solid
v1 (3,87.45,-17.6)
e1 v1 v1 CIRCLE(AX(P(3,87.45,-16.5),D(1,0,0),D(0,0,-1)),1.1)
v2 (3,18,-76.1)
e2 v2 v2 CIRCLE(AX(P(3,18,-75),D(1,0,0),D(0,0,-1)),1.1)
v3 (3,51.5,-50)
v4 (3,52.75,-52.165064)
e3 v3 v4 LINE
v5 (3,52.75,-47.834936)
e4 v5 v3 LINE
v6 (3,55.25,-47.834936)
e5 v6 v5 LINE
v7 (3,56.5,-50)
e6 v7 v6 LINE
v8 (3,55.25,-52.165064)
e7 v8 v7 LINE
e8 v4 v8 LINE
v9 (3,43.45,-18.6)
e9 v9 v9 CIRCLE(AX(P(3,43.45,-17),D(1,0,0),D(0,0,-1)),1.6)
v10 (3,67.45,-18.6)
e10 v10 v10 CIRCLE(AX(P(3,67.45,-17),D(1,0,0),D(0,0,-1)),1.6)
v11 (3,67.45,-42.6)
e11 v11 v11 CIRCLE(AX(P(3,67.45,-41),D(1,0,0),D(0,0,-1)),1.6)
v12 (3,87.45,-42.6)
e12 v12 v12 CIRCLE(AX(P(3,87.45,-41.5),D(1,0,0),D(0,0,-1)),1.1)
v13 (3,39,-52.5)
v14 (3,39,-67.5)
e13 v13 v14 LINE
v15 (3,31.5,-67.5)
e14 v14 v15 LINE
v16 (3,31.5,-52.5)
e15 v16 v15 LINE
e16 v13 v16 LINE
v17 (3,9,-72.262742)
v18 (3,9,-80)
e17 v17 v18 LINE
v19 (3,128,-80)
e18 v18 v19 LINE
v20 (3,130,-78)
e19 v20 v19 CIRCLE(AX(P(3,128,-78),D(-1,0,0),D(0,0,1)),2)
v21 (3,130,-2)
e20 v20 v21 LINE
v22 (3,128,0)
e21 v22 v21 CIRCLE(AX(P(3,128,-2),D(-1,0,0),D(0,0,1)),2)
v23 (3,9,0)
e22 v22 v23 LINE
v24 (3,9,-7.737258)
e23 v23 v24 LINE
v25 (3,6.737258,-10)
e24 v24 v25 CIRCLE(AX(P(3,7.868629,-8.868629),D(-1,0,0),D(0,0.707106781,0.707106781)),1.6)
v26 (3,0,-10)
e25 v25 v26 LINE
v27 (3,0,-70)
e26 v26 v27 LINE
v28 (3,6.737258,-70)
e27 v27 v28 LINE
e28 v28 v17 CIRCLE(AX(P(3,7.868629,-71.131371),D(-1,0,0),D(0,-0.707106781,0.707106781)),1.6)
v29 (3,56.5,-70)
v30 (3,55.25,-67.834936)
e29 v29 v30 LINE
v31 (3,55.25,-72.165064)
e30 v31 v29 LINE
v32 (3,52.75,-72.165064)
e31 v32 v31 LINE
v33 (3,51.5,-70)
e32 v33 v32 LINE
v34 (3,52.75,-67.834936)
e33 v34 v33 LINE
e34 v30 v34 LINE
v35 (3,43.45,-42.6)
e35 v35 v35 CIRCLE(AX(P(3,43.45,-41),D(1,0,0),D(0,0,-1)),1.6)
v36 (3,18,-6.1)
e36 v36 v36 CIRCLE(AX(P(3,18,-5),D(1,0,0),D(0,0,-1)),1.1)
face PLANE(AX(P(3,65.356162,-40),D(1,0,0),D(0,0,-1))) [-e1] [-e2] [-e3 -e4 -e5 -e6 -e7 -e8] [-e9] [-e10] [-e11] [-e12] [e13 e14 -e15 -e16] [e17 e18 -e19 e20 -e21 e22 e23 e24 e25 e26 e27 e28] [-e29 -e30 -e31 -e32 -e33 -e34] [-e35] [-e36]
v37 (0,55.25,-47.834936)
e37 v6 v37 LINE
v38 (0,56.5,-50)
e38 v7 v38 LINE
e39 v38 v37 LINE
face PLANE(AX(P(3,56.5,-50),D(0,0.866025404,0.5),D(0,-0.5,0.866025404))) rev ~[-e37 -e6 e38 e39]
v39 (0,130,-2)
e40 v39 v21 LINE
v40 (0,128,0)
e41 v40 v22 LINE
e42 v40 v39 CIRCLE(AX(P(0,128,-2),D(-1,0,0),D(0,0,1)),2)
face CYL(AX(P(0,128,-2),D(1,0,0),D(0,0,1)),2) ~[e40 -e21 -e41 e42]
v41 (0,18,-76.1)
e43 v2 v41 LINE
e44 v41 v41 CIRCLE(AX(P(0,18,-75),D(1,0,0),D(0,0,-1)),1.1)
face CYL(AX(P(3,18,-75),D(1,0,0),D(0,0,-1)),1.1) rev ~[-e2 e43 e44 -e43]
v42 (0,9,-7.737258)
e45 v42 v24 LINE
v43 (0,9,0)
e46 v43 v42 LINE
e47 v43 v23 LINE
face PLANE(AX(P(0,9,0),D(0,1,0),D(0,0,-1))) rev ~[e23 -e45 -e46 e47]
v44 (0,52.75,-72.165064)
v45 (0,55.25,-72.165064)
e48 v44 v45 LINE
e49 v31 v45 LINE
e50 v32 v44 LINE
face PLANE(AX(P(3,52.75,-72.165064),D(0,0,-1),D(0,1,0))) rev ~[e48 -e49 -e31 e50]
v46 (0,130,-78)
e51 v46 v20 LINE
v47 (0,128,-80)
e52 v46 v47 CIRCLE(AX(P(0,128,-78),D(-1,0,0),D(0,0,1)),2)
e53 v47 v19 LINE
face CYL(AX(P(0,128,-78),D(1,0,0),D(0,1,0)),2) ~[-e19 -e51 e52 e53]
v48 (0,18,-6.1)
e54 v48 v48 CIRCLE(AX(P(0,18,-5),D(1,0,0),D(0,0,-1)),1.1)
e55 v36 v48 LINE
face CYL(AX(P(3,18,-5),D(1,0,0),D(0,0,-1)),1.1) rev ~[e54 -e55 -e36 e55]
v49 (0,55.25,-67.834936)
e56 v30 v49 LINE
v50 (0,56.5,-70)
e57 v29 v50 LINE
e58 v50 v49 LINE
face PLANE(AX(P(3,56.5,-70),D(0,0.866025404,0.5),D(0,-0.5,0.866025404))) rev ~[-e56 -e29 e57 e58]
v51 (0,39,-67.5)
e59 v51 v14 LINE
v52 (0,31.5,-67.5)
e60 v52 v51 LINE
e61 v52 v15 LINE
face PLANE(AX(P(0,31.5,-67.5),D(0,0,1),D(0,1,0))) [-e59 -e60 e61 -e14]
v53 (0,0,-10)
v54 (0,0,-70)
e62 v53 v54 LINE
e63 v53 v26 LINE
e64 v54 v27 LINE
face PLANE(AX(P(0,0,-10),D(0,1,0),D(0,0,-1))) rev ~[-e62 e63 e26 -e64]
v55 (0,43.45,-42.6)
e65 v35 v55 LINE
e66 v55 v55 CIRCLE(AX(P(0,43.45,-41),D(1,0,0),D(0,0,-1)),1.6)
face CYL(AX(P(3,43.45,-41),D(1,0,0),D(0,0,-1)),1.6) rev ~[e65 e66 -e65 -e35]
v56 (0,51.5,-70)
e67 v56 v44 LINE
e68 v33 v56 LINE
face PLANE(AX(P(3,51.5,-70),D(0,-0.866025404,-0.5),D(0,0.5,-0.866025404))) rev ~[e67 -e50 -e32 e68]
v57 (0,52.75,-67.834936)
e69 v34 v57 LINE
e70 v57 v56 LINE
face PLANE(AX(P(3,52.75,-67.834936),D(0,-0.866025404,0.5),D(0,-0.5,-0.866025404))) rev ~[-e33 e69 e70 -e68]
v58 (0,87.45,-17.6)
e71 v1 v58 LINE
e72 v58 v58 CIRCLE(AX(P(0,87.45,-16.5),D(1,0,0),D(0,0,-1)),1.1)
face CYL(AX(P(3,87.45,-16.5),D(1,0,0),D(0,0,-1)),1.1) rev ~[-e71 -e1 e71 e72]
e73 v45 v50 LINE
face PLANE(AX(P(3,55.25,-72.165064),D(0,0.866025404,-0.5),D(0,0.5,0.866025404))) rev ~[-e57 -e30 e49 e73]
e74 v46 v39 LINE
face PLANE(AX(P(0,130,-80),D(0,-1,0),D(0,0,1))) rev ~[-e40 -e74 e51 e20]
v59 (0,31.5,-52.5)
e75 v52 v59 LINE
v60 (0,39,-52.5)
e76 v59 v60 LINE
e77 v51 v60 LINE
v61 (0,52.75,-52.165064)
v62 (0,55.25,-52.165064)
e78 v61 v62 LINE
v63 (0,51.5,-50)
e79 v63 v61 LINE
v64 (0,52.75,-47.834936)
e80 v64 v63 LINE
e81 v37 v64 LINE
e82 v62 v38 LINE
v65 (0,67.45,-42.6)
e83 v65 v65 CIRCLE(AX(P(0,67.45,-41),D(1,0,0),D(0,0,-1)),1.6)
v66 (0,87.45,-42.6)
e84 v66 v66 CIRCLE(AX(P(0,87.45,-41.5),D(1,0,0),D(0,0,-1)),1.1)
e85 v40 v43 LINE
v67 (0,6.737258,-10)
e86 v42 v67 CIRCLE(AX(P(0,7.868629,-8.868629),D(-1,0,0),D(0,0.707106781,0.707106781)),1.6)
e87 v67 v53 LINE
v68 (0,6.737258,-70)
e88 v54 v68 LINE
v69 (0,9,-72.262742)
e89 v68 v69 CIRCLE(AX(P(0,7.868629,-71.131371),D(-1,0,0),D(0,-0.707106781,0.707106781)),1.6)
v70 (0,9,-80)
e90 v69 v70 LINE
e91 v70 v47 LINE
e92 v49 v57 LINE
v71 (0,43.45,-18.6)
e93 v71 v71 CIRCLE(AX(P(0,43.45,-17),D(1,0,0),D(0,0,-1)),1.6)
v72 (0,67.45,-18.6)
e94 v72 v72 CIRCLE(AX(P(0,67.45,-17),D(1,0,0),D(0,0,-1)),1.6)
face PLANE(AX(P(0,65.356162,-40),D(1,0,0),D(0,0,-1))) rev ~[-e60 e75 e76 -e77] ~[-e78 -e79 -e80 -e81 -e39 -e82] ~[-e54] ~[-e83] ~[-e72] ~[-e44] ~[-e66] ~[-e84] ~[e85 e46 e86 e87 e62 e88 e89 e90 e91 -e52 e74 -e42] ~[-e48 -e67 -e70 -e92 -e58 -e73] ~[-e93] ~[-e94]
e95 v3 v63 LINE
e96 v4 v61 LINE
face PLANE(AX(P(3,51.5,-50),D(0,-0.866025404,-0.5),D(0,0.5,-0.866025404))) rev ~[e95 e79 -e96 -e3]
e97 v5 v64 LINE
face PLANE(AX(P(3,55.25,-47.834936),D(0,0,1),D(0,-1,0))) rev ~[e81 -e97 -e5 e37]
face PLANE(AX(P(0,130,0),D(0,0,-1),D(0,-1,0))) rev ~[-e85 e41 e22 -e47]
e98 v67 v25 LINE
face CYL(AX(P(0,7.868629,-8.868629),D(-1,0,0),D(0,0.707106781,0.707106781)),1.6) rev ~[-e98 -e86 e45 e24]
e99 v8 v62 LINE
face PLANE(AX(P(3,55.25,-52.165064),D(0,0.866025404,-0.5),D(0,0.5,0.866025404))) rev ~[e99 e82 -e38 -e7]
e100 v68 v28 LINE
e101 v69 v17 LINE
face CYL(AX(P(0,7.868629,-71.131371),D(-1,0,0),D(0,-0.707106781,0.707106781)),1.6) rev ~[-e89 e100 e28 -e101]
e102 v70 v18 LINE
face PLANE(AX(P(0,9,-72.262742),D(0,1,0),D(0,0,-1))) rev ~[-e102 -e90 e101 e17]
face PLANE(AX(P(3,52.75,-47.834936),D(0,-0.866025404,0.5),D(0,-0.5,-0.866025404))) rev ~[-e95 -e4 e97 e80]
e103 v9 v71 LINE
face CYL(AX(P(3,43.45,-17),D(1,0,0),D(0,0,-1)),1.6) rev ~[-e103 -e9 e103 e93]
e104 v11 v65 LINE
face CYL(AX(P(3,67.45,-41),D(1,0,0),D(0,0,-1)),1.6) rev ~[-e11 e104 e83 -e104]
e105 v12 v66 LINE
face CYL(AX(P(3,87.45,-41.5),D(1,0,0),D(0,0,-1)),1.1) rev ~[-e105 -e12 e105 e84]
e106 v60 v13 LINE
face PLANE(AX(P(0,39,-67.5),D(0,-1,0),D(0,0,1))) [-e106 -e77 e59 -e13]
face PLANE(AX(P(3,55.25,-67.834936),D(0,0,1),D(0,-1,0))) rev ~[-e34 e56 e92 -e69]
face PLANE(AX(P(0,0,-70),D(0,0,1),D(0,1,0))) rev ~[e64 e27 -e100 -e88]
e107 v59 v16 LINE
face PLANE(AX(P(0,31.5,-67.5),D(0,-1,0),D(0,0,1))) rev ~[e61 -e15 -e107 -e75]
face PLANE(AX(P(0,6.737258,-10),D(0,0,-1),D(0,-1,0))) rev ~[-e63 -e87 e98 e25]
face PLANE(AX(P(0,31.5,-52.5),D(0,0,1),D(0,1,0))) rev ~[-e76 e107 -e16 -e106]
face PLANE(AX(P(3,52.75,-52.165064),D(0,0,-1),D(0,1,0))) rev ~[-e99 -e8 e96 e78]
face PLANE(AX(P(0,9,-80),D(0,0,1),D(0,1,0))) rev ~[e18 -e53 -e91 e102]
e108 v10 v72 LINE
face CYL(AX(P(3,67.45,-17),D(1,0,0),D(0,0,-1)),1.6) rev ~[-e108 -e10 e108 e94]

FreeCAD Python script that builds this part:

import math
import FreeCAD as App
import Part
import Sketcher
Q = App.Units.Quantity


def edges_at(feature, points):
    """Names of the edges that pass closest to the given points."""
    edges = feature.Shape.Edges
    near = lambda p: min(range(len(edges)), key=lambda i: edges[i].distToShape(Part.Vertex(*p))[0])
    return sorted({f"Edge{near(p) + 1}" for p in points})

doc = App.newDocument("Part")
body = doc.addObject("PartDesign::Body", "Body")

sketch1 = body.newObject("Sketcher::SketchObject", "Sketch")
sketch1.AttachmentSupport = (doc.getObject("YZ_Plane"), [""])
sketch1.MapMode = "FlatFace"
sketch1.addGeometry(Part.LineSegment(App.Vector(6.737258, -10, 0), App.Vector(0, -10, 0)), False)
sketch1.addGeometry(Part.LineSegment(App.Vector(0, -10, 0), App.Vector(0, -70, 0)), False)
sketch1.addGeometry(Part.LineSegment(App.Vector(0, -70, 0), App.Vector(6.737258, -70, 0)), False)
sketch1.addGeometry(Part.ArcOfCircle(Part.Circle(App.Vector(7.868629, -71.131371, 0), App.Vector(0, 0, 1), 1.6), math.radians(-45), math.radians(135)), False)
sketch1.addGeometry(Part.LineSegment(App.Vector(9, -72.262742, 0), App.Vector(9, -80, 0)), False)
sketch1.addGeometry(Part.LineSegment(App.Vector(9, -80, 0), App.Vector(130, -80, 0)), False)
sketch1.addGeometry(Part.LineSegment(App.Vector(130, -80, 0), App.Vector(130, 0, 0)), False)
sketch1.addGeometry(Part.LineSegment(App.Vector(130, 0, 0), App.Vector(9, 0, 0)), False)
sketch1.addGeometry(Part.LineSegment(App.Vector(9, 0, 0), App.Vector(9, -7.737258, 0)), False)
sketch1.addGeometry(Part.ArcOfCircle(Part.Circle(App.Vector(7.868629, -8.868629, 0), App.Vector(0, 0, 1), 1.6), math.radians(-135), math.radians(45)), False)
sketch1.addConstraint(Sketcher.Constraint("Coincident", 0, 2, 1, 1))
sketch1.addConstraint(Sketcher.Constraint("Coincident", 1, 2, 2, 1))
sketch1.addConstraint(Sketcher.Constraint("Coincident", 2, 2, 3, 2))
sketch1.addConstraint(Sketcher.Constraint("Coincident", 3, 1, 4, 1))
sketch1.addConstraint(Sketcher.Constraint("Coincident", 4, 2, 5, 1))
sketch1.addConstraint(Sketcher.Constraint("Coincident", 5, 2, 6, 1))
sketch1.addConstraint(Sketcher.Constraint("Coincident", 6, 2, 7, 1))
sketch1.addConstraint(Sketcher.Constraint("Coincident", 7, 2, 8, 1))
sketch1.addConstraint(Sketcher.Constraint("Coincident", 8, 2, 9, 2))
sketch1.addConstraint(Sketcher.Constraint("Coincident", 9, 1, 0, 1))
sketch1.addConstraint(Sketcher.Constraint("Horizontal", 0))
sketch1.addConstraint(Sketcher.Constraint("Vertical", 1))
sketch1.addConstraint(Sketcher.Constraint("Horizontal", 2))
sketch1.addConstraint(Sketcher.Constraint("Vertical", 4))
sketch1.addConstraint(Sketcher.Constraint("Horizontal", 5))
sketch1.addConstraint(Sketcher.Constraint("Vertical", 6))
sketch1.addConstraint(Sketcher.Constraint("Horizontal", 7))
sketch1.addConstraint(Sketcher.Constraint("Vertical", 8))
sketch1.addConstraint(Sketcher.Constraint("Equal", 3, 9))
sketch1.addConstraint(Sketcher.Constraint("PointOnObject", 0, 2, -2))
sketch1.addConstraint(Sketcher.Constraint("PointOnObject", 6, 2, -1))
sketch1.addConstraint(Sketcher.Constraint("Vertical", 3, 3, 9, 3))
sketch1.addConstraint(Sketcher.Constraint("Vertical", 4, 2, 7, 2))
sketch1.addConstraint(Sketcher.Constraint("Vertical", 2, 2, 9, 1))
sketch1.addConstraint(Sketcher.Constraint("Equal", 4, 8))
sketch1.addConstraint(Sketcher.Constraint("Radius", 3, Q("1.6 mm")))
sketch1.addConstraint(Sketcher.Constraint("DistanceX", 5, 1, 5, 2, Q("121 mm")))
sketch1.addConstraint(Sketcher.Constraint("DistanceY", 1, 2, 1, 1, Q("60 mm")))
sketch1.addConstraint(Sketcher.Constraint("DistanceY", 6, 1, 6, 2, Q("80 mm")))
sketch1.addConstraint(Sketcher.Constraint("DistanceX", -1, 1, 3, 1, Q("9 mm")))
sketch1.addConstraint(Sketcher.Constraint("DistanceX", 0, 2, 0, 1, Q("6.737258 mm")))
sketch1.addConstraint(Sketcher.Constraint("DistanceX", -1, 1, 3, 3, Q("7.868629 mm")))
pad1 = body.newObject("PartDesign::Pad", "Pad")
pad1.Profile = sketch1
pad1.Length = 3

sketch2 = body.newObject("Sketcher::SketchObject", "Sketch001")
sketch2.AttachmentSupport = (doc.getObject("YZ_Plane"), [""])
sketch2.MapMode = "FlatFace"
sketch2.AttachmentOffset = App.Placement(App.Vector(0, 0, 3), App.Rotation())
sketch2.addGeometry(Part.Circle(App.Vector(67.45, -17, 0), App.Vector(0, 0, 1), 1.6), False)
sketch2.addGeometry(Part.Circle(App.Vector(43.45, -17, 0), App.Vector(0, 0, 1), 1.6), False)
sketch2.addGeometry(Part.Circle(App.Vector(43.45, -41, 0), App.Vector(0, 0, 1), 1.6), False)
sketch2.addGeometry(Part.Circle(App.Vector(67.45, -41, 0), App.Vector(0, 0, 1), 1.6), False)
sketch2.addGeometry(Part.Circle(App.Vector(54, -70, 0), App.Vector(0, 0, 1), 1.1), False)
sketch2.addGeometry(Part.Circle(App.Vector(54, -50, 0), App.Vector(0, 0, 1), 1.1), False)
sketch2.addConstraint(Sketcher.Constraint("Equal", 0, 1))
sketch2.addConstraint(Sketcher.Constraint("Equal", 1, 2))
sketch2.addConstraint(Sketcher.Constraint("Equal", 2, 3))
sketch2.addConstraint(Sketcher.Constraint("Equal", 4, 5))
sketch2.addConstraint(Sketcher.Constraint("Horizontal", 0, 3, 1, 3))
sketch2.addConstraint(Sketcher.Constraint("Horizontal", 2, 3, 3, 3))
sketch2.addConstraint(Sketcher.Constraint("Vertical", 1, 3, 2, 3))
sketch2.addConstraint(Sketcher.Constraint("Vertical", 0, 3, 3, 3))
sketch2.addConstraint(Sketcher.Constraint("Vertical", 4, 3, 5, 3))
sketch2.addConstraint(Sketcher.Constraint("Diameter", 0, Q("3.2 mm")))
sketch2.addConstraint(Sketcher.Constraint("Diameter", 4, Q("2.2 mm")))
sketch2.addConstraint(Sketcher.Constraint("DistanceY", 0, 3, -1, 1, Q("17 mm")))
sketch2.addConstraint(Sketcher.Constraint("DistanceY", 2, 3, -1, 1, Q("41 mm")))
sketch2.addConstraint(Sketcher.Constraint("DistanceX", -1, 1, 4, 3, Q("54 mm")))
sketch2.addConstraint(Sketcher.Constraint("DistanceY", 4, 3, -1, 1, Q("70 mm")))
sketch2.addConstraint(Sketcher.Constraint("DistanceY", 5, 3, -1, 1, Q("50 mm")))
sketch2.addConstraint(Sketcher.Constraint("DistanceX", 1, 3, 0, 3, Q("24 mm")))
sketch2.addConstraint(Sketcher.Constraint("DistanceX", -1, 1, 0, 3, Q("67.45 mm")))
pocket1 = body.newObject("PartDesign::Pocket", "Pocket")
pocket1.Profile = sketch2
pocket1.Type = "ThroughAll"

sketch3 = body.newObject("Sketcher::SketchObject", "Sketch002")
sketch3.AttachmentSupport = (doc.getObject("YZ_Plane"), [""])
sketch3.MapMode = "FlatFace"
sketch3.addGeometry(Part.LineSegment(App.Vector(39, -67.5, 0), App.Vector(31.5, -67.5, 0)), False)
sketch3.addGeometry(Part.LineSegment(App.Vector(31.5, -67.5, 0), App.Vector(31.5, -52.5, 0)), False)
sketch3.addGeometry(Part.LineSegment(App.Vector(31.5, -52.5, 0), App.Vector(39, -52.5, 0)), False)
sketch3.addGeometry(Part.LineSegment(App.Vector(39, -52.5, 0), App.Vector(39, -67.5, 0)), False)
sketch3.addConstraint(Sketcher.Constraint("Coincident", 0, 2, 1, 1))
sketch3.addConstraint(Sketcher.Constraint("Coincident", 1, 2, 2, 1))
sketch3.addConstraint(Sketcher.Constraint("Coincident", 2, 2, 3, 1))
sketch3.addConstraint(Sketcher.Constraint("Coincident", 3, 2, 0, 1))
sketch3.addConstraint(Sketcher.Constraint("Horizontal", 0))
sketch3.addConstraint(Sketcher.Constraint("Vertical", 1))
sketch3.addConstraint(Sketcher.Constraint("Horizontal", 2))
sketch3.addConstraint(Sketcher.Constraint("Vertical", 3))
sketch3.addConstraint(Sketcher.Constraint("DistanceY", 1, 1, 1, 2, Q("15 mm")))
sketch3.addConstraint(Sketcher.Constraint("DistanceX", 0, 2, 0, 1, Q("7.5 mm")))
sketch3.addConstraint(Sketcher.Constraint("DistanceX", -1, 1, 2, 2, Q("39 mm")))
sketch3.addConstraint(Sketcher.Constraint("DistanceY", 0, 2, -1, 1, Q("67.5 mm")))
pocket2 = body.newObject("PartDesign::Pocket", "Pocket001")
pocket2.Profile = sketch3
pocket2.Type = "ThroughAll"
pocket2.Reversed = True

sketch4 = body.newObject("Sketcher::SketchObject", "Sketch003")
sketch4.AttachmentSupport = (doc.getObject("YZ_Plane"), [""])
sketch4.MapMode = "FlatFace"
sketch4.AttachmentOffset = App.Placement(App.Vector(0, 0, 3), App.Rotation())
sketch4.addGeometry(Part.Circle(App.Vector(18, -75, 0), App.Vector(0, 0, 1), 1.1), False)
sketch4.addGeometry(Part.Circle(App.Vector(18, -5, 0), App.Vector(0, 0, 1), 1.1), False)
sketch4.addConstraint(Sketcher.Constraint("Equal", 0, 1))
sketch4.addConstraint(Sketcher.Constraint("Vertical", 0, 3, 1, 3))
sketch4.addConstraint(Sketcher.Constraint("Diameter", 0, Q("2.2 mm")))
sketch4.addConstraint(Sketcher.Constraint("DistanceX", -1, 1, 0, 3, Q("18 mm")))
sketch4.addConstraint(Sketcher.Constraint("DistanceY", 0, 3, -1, 1, Q("75 mm")))
sketch4.addConstraint(Sketcher.Constraint("DistanceY", 1, 3, -1, 1, Q("5 mm")))
pocket3 = body.newObject("PartDesign::Pocket", "Pocket002")
pocket3.Profile = sketch4
pocket3.Type = "ThroughAll"

sketch5 = body.newObject("Sketcher::SketchObject", "Sketch004")
sketch5.AttachmentSupport = (doc.getObject("YZ_Plane"), [""])
sketch5.MapMode = "FlatFace"
sketch5.AttachmentOffset = App.Placement(App.Vector(0, 0, 3), App.Rotation())
sketch5.addGeometry(Part.LineSegment(App.Vector(51.5, -50, 0), App.Vector(52.75, -52.165064, 0)), False)
sketch5.addGeometry(Part.LineSegment(App.Vector(52.75, -52.165064, 0), App.Vector(55.25, -52.165064, 0)), False)
sketch5.addGeometry(Part.LineSegment(App.Vector(55.25, -52.165064, 0), App.Vector(56.5, -50, 0)), False)
sketch5.addGeometry(Part.LineSegment(App.Vector(56.5, -50, 0), App.Vector(55.25, -47.834936, 0)), False)
sketch5.addGeometry(Part.LineSegment(App.Vector(55.25, -47.834936, 0), App.Vector(52.75, -47.834936, 0)), False)
sketch5.addGeometry(Part.LineSegment(App.Vector(52.75, -47.834936, 0), App.Vector(51.5, -50, 0)), False)
sketch5.addGeometry(Part.LineSegment(App.Vector(51.5, -70, 0), App.Vector(52.75, -72.165064, 0)), False)
sketch5.addGeometry(Part.LineSegment(App.Vector(52.75, -72.165064, 0), App.Vector(55.25, -72.165064, 0)), False)
sketch5.addGeometry(Part.LineSegment(App.Vector(55.25, -72.165064, 0), App.Vector(56.5, -70, 0)), False)
sketch5.addGeometry(Part.LineSegment(App.Vector(56.5, -70, 0), App.Vector(55.25, -67.834936, 0)), False)
sketch5.addGeometry(Part.LineSegment(App.Vector(55.25, -67.834936, 0), App.Vector(52.75, -67.834936, 0)), False)
sketch5.addGeometry(Part.LineSegment(App.Vector(52.75, -67.834936, 0), App.Vector(51.5, -70, 0)), False)
sketch5.addConstraint(Sketcher.Constraint("Coincident", 0, 2, 1, 1))
sketch5.addConstraint(Sketcher.Constraint("Coincident", 1, 2, 2, 1))
sketch5.addConstraint(Sketcher.Constraint("Coincident", 2, 2, 3, 1))
sketch5.addConstraint(Sketcher.Constraint("Coincident", 3, 2, 4, 1))
sketch5.addConstraint(Sketcher.Constraint("Coincident", 4, 2, 5, 1))
sketch5.addConstraint(Sketcher.Constraint("Coincident", 5, 2, 0, 1))
sketch5.addConstraint(Sketcher.Constraint("Coincident", 6, 2, 7, 1))
sketch5.addConstraint(Sketcher.Constraint("Coincident", 7, 2, 8, 1))
sketch5.addConstraint(Sketcher.Constraint("Coincident", 8, 2, 9, 1))
sketch5.addConstraint(Sketcher.Constraint("Coincident", 9, 2, 10, 1))
sketch5.addConstraint(Sketcher.Constraint("Coincident", 10, 2, 11, 1))
sketch5.addConstraint(Sketcher.Constraint("Coincident", 11, 2, 6, 1))
sketch5.addConstraint(Sketcher.Constraint("Horizontal", 1))
sketch5.addConstraint(Sketcher.Constraint("Horizontal", 4))
sketch5.addConstraint(Sketcher.Constraint("Horizontal", 7))
sketch5.addConstraint(Sketcher.Constraint("Horizontal", 10))
sketch5.addConstraint(Sketcher.Constraint("Parallel", 0, 3))
sketch5.addConstraint(Sketcher.Constraint("Parallel", 2, 5))
sketch5.addConstraint(Sketcher.Constraint("Parallel", 3, 6))
sketch5.addConstraint(Sketcher.Constraint("Parallel", 5, 8))
sketch5.addConstraint(Sketcher.Constraint("Parallel", 6, 9))
sketch5.addConstraint(Sketcher.Constraint("Parallel", 8, 11))
sketch5.addConstraint(Sketcher.Constraint("Horizontal", 2, 2, 5, 2))
sketch5.addConstraint(Sketcher.Constraint("Horizontal", 8, 2, 11, 2))
sketch5.addConstraint(Sketcher.Constraint("Vertical", 1, 2, 3, 2))
sketch5.addConstraint(Sketcher.Constraint("Vertical", 0, 2, 4, 2))
sketch5.addConstraint(Sketcher.Constraint("Vertical", 4, 2, 6, 2))
sketch5.addConstraint(Sketcher.Constraint("Vertical", 3, 2, 7, 2))
sketch5.addConstraint(Sketcher.Constraint("Vertical", 2, 2, 8, 2))
sketch5.addConstraint(Sketcher.Constraint("Vertical", 7, 2, 9, 2))
sketch5.addConstraint(Sketcher.Constraint("Angle", 0, Q("-60 deg")))
sketch5.addConstraint(Sketcher.Constraint("DistanceX", 1, 1, 1, 2, Q("2.5 mm")))
sketch5.addConstraint(Sketcher.Constraint("DistanceY", 2, 2, -1, 1, Q("50 mm")))
sketch5.addConstraint(Sketcher.Constraint("DistanceY", 8, 2, -1, 1, Q("70 mm")))
sketch5.addConstraint(Sketcher.Constraint("DistanceX", 5, 2, 2, 2, Q("5 mm")))
sketch5.addConstraint(Sketcher.Constraint("DistanceX", -1, 1, 2, 2, Q("56.5 mm")))
pocket4 = body.newObject("PartDesign::Pocket", "Pocket003")
pocket4.Profile = sketch5
pocket4.Type = "ThroughAll"
doc.recompute()

fillet = body.newObject("PartDesign::Fillet", "Fillet")
fillet.Base = (pocket4, edges_at(pocket4, [(1.5, 130, 0), (1.5, 130, -80)]))
fillet.Radius = 2

sketch6 = body.newObject("Sketcher::SketchObject", "Sketch005")
sketch6.AttachmentSupport = (doc.getObject("YZ_Plane"), [""])
sketch6.MapMode = "FlatFace"
sketch6.AttachmentOffset = App.Placement(App.Vector(0, 0, 3), App.Rotation())
sketch6.addGeometry(Part.Circle(App.Vector(87.45, -16.5, 0), App.Vector(0, 0, 1), 1.1), False)
sketch6.addGeometry(Part.Circle(App.Vector(87.45, -41.5, 0), App.Vector(0, 0, 1), 1.1), False)
sketch6.addConstraint(Sketcher.Constraint("Equal", 0, 1))
sketch6.addConstraint(Sketcher.Constraint("Vertical", 0, 3, 1, 3))
sketch6.addConstraint(Sketcher.Constraint("Diameter", 0, Q("2.2 mm")))
sketch6.addConstraint(Sketcher.Constraint("DistanceY", 1, 3, 0, 3, Q("25 mm")))
sketch6.addConstraint(Sketcher.Constraint("DistanceY", 0, 3, -1, 1, Q("16.5 mm")))
sketch6.addConstraint(Sketcher.Constraint("DistanceX", -1, 1, 0, 3, Q("87.45 mm")))
pocket5 = body.newObject("PartDesign::Pocket", "Pocket004")
pocket5.Profile = sketch6
pocket5.Type = "ThroughAll"

doc.recompute()
